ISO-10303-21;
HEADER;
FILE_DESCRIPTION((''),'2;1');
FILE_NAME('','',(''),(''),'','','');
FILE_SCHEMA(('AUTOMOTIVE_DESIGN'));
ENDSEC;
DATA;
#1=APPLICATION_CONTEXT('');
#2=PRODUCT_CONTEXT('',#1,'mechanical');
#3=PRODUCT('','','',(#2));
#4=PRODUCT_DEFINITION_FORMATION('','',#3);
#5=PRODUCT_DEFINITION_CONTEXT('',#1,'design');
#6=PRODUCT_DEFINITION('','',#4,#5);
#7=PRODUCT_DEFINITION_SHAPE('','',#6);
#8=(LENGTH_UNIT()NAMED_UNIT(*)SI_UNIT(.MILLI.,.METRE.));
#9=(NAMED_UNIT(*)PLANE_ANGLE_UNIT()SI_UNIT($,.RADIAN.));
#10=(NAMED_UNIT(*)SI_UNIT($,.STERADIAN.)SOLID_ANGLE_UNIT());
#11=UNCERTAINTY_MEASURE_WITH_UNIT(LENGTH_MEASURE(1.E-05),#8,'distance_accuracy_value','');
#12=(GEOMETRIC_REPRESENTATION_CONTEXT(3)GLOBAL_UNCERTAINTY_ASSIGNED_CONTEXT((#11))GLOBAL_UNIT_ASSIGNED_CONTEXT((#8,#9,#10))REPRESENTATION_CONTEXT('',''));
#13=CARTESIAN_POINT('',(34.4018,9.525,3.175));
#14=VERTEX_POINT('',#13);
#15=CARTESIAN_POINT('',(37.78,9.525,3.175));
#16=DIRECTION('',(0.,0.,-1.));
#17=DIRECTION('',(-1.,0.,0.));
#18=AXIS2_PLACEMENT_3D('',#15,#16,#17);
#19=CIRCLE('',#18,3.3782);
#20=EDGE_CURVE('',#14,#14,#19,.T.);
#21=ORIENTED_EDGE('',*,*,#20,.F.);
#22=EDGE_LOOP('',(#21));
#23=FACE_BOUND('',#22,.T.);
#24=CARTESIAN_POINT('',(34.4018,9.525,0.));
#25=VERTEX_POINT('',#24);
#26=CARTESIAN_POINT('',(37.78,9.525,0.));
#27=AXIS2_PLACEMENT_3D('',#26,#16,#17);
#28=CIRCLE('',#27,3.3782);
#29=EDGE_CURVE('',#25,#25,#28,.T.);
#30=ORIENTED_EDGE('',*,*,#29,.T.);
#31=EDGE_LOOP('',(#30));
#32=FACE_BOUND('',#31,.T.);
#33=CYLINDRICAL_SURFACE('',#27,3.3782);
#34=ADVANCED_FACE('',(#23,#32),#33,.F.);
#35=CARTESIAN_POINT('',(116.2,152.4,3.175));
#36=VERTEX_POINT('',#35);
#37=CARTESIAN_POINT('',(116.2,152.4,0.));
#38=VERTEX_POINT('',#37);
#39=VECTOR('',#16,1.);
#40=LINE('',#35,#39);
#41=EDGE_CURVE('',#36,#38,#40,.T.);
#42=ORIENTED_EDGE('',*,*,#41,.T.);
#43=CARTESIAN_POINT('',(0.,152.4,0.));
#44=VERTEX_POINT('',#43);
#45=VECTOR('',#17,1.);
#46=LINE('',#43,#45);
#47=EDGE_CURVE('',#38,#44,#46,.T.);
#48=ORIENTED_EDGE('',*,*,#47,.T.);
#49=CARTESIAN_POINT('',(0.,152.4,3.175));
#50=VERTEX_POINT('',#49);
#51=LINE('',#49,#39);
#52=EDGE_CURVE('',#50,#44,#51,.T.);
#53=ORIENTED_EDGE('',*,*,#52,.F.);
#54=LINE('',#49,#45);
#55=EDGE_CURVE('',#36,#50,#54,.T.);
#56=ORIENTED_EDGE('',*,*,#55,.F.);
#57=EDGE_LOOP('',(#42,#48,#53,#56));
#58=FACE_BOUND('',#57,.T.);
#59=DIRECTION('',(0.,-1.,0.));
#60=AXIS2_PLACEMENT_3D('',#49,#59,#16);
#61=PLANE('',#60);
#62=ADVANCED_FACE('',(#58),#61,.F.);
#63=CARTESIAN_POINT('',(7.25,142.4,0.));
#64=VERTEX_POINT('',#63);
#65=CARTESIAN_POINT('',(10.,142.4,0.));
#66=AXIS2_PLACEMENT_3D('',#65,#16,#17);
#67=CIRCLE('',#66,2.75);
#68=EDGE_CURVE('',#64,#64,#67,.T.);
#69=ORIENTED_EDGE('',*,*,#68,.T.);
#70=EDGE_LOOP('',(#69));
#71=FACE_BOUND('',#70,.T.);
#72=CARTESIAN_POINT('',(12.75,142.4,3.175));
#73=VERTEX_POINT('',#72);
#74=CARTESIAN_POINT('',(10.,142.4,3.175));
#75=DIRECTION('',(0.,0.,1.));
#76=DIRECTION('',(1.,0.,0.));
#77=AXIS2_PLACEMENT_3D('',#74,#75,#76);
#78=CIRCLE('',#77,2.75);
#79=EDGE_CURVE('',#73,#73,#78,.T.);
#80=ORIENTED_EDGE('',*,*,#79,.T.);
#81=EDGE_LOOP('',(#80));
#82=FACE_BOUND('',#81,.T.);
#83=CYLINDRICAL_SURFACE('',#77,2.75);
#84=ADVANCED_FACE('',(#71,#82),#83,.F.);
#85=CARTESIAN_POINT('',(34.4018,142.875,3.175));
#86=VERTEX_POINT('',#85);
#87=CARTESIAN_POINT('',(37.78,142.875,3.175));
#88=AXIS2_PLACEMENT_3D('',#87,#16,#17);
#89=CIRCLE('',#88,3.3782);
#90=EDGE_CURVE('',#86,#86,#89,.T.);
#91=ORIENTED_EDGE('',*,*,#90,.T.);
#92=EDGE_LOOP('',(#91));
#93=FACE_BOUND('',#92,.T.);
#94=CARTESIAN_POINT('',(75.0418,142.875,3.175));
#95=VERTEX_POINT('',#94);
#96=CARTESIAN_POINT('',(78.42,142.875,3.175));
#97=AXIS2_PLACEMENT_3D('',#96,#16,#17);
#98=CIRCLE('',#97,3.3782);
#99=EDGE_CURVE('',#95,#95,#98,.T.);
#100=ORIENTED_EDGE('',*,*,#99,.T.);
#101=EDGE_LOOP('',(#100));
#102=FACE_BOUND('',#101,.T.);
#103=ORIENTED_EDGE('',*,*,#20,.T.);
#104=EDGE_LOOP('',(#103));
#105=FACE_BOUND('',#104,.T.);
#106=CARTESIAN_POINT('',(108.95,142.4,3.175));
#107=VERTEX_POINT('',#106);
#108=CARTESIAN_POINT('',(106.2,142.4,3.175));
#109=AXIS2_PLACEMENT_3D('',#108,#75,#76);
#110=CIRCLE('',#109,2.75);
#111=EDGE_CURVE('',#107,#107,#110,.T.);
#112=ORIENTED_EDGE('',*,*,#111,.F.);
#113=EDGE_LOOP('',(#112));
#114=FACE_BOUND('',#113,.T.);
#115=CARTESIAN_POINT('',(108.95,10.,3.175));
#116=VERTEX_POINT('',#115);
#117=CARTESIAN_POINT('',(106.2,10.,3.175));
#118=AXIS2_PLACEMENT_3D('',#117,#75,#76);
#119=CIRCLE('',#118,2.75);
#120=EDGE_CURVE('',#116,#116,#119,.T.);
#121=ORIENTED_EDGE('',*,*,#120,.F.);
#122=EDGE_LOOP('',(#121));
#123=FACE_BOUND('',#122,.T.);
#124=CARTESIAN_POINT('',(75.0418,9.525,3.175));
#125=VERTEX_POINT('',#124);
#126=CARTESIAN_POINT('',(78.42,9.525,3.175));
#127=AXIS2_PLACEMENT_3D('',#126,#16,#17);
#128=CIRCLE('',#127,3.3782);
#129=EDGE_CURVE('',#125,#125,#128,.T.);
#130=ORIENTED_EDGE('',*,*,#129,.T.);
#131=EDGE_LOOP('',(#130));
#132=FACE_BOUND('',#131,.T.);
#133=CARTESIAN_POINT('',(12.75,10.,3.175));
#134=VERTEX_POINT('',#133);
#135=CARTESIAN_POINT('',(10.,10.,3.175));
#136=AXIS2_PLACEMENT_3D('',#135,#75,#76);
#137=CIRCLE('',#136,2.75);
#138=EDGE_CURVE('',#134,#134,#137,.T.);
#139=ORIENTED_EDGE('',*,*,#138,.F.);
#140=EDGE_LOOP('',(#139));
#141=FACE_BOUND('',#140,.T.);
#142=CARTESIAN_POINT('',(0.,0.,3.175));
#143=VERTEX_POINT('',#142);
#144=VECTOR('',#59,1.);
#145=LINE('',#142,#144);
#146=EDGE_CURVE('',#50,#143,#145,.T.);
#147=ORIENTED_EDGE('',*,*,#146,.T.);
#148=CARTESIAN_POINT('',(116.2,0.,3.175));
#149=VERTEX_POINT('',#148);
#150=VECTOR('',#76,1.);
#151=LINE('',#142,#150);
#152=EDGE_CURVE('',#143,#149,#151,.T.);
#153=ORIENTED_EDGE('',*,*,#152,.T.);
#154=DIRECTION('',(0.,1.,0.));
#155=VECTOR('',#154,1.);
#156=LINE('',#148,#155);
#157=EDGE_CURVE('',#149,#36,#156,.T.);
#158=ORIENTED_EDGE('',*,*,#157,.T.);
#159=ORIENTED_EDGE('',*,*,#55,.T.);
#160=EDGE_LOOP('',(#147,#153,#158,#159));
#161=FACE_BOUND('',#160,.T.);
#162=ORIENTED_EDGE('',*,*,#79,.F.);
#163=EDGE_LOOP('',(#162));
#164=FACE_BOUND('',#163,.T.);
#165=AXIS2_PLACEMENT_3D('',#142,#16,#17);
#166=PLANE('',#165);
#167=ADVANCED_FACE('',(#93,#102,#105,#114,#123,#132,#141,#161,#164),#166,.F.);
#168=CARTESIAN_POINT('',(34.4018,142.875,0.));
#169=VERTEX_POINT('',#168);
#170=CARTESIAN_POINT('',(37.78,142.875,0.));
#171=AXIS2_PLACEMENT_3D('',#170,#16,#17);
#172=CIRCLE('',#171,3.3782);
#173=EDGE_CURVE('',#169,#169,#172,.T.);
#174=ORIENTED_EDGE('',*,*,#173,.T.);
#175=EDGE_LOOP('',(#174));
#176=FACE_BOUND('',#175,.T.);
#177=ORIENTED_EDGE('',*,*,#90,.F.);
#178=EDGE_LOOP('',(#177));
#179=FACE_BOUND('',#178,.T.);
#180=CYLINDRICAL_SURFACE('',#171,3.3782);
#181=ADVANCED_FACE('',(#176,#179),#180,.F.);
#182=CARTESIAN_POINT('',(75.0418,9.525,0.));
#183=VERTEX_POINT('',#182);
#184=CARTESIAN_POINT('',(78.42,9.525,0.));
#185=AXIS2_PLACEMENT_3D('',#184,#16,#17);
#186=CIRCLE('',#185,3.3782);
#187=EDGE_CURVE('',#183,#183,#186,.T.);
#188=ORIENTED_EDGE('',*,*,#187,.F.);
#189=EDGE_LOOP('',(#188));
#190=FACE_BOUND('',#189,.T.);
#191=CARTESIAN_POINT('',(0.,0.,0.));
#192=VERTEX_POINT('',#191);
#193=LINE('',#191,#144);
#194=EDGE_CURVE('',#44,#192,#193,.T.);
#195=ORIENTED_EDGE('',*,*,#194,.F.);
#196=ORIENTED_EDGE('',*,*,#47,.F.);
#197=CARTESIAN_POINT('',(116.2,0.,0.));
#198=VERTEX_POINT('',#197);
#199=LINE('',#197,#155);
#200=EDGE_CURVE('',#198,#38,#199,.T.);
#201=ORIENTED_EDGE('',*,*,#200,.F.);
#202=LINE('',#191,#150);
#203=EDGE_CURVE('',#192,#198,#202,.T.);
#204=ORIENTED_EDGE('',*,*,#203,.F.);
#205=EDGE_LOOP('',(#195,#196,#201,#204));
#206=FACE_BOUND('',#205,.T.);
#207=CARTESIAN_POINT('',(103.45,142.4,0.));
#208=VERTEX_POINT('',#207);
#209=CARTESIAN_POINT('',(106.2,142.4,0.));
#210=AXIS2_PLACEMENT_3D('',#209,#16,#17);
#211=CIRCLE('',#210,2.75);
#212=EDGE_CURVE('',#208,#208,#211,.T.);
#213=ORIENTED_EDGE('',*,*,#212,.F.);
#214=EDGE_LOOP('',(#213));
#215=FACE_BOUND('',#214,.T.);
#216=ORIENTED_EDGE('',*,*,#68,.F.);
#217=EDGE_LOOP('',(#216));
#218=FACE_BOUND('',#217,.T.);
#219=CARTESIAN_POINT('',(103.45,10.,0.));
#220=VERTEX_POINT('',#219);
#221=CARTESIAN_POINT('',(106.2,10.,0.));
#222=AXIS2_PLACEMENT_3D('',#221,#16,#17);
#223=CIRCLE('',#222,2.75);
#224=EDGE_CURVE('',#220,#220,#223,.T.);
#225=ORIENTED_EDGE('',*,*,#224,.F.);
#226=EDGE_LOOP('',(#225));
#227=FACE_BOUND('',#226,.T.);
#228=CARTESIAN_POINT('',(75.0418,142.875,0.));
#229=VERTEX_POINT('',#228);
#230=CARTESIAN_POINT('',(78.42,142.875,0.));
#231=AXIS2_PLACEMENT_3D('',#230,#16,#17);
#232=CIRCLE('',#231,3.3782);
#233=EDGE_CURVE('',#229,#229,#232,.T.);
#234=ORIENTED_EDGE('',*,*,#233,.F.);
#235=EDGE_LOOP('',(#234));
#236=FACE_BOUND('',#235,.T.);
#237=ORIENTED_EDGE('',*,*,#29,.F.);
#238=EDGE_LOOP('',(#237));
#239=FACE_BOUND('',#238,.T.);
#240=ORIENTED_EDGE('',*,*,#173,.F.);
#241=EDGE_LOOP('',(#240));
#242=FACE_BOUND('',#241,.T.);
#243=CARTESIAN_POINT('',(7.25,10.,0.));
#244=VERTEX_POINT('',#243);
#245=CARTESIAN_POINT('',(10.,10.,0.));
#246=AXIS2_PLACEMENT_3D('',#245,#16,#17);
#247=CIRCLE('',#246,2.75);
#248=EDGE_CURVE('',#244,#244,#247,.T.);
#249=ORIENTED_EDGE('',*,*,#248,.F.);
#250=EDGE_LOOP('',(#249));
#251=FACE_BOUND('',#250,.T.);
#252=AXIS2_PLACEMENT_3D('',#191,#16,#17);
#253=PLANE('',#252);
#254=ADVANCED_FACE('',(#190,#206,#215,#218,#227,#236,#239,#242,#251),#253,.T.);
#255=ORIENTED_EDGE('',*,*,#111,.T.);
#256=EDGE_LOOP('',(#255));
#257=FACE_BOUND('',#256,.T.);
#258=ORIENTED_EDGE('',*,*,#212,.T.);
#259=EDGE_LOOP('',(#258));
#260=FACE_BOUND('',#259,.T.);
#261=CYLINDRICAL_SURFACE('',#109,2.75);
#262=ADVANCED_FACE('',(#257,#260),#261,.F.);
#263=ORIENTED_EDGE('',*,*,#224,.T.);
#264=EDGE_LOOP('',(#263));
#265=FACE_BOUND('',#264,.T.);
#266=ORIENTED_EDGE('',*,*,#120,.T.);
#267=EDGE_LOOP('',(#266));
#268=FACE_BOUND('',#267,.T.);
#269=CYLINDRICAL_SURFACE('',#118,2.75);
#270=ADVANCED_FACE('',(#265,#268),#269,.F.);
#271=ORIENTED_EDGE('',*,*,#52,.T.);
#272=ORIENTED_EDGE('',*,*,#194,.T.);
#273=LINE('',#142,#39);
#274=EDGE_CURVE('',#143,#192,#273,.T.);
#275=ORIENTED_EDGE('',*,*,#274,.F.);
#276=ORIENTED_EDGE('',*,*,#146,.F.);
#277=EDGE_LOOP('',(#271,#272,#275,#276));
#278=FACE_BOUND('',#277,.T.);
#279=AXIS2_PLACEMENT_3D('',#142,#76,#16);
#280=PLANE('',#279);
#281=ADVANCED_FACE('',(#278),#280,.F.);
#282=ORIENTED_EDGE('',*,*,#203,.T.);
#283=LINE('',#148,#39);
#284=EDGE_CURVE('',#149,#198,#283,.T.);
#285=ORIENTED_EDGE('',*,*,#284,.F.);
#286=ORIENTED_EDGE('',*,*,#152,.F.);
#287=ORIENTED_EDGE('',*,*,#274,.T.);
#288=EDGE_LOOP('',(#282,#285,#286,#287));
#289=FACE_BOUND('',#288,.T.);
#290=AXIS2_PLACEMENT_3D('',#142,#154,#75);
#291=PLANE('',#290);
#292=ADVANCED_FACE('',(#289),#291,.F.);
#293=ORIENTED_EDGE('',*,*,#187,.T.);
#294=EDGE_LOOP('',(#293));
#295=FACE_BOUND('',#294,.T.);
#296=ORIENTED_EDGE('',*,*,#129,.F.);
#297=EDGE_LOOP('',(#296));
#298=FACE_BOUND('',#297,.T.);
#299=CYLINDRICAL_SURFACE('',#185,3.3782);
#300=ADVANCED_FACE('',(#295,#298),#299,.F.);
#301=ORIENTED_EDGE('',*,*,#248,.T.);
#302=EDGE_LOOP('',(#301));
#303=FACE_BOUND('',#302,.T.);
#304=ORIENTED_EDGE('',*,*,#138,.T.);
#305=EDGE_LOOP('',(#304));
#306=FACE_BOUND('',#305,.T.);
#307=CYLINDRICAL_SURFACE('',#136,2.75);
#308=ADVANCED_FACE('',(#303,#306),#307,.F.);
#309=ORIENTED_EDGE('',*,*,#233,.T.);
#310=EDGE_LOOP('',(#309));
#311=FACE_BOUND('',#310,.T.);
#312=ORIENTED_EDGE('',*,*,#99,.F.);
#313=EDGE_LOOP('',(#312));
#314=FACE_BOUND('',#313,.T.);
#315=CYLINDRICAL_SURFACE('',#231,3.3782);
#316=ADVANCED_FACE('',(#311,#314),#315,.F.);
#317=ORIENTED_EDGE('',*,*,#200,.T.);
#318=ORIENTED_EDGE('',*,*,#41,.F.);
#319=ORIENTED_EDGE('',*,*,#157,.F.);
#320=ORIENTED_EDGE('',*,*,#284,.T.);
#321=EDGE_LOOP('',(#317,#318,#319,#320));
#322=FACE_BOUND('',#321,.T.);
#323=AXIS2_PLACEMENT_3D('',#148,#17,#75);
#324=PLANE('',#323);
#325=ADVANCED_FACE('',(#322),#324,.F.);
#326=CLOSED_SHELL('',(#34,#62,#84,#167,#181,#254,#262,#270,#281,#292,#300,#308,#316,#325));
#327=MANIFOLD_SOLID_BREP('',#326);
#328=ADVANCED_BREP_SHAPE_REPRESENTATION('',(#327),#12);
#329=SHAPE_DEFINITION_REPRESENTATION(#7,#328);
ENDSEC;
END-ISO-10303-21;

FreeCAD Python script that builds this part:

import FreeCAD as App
import Part
import Sketcher
Q = App.Units.Quantity

doc = App.newDocument("Part")
body = doc.addObject("PartDesign::Body", "Body")

sketch1 = body.newObject("Sketcher::SketchObject", "Sketch")
sketch1.AttachmentSupport = (doc.getObject("XY_Plane"), [""])
sketch1.MapMode = "FlatFace"
sketch1.addGeometry(Part.LineSegment(App.Vector(0, 152, 0), App.Vector(0, 0, 0)), False)
sketch1.addGeometry(Part.LineSegment(App.Vector(0, 0, 0), App.Vector(116, 0, 0)), False)
sketch1.addGeometry(Part.LineSegment(App.Vector(116, 0, 0), App.Vector(116, 152, 0)), False)
sketch1.addGeometry(Part.LineSegment(App.Vector(116, 152, 0), App.Vector(0, 152, 0)), False)
sketch1.addConstraint(Sketcher.Constraint("Coincident", 0, 2, 1, 1))
sketch1.addConstraint(Sketcher.Constraint("Coincident", 1, 2, 2, 1))
sketch1.addConstraint(Sketcher.Constraint("Coincident", 2, 2, 3, 1))
sketch1.addConstraint(Sketcher.Constraint("Coincident", 3, 2, 0, 1))
sketch1.addConstraint(Sketcher.Constraint("Vertical", 0))
sketch1.addConstraint(Sketcher.Constraint("Horizontal", 1))
sketch1.addConstraint(Sketcher.Constraint("Vertical", 2))
sketch1.addConstraint(Sketcher.Constraint("Horizontal", 3))
sketch1.addConstraint(Sketcher.Constraint("Coincident", 0, 2, -1, 1))
sketch1.addConstraint(Sketcher.Constraint("DistanceY", 0, 2, 0, 1, Q("6 in")))
sketch1.addConstraint(Sketcher.Constraint("DistanceX", 1, 1, 1, 2, 116.2))
pad1 = body.newObject("PartDesign::Pad", "Pad")
pad1.Profile = sketch1
pad1.Length = Q("0.125 in")

sketch2 = body.newObject("Sketcher::SketchObject", "Sketch001")
sketch2.AttachmentSupport = (doc.getObject("XY_Plane"), [""])
sketch2.MapMode = "FlatFace"
sketch2.AttachmentOffset = App.Placement(App.Vector(0, 0, 0.125 * 25.4), App.Rotation())
sketch2.addGeometry(Part.Circle(App.Vector(10, 142.4, 0), App.Vector(0, 0, 1), 2.8), False)
sketch2.addGeometry(Part.Circle(App.Vector(106.2, 142.4, 0), App.Vector(0, 0, 1), 2.8), False)
sketch2.addGeometry(Part.Circle(App.Vector(106.2, 10, 0), App.Vector(0, 0, 1), 2.8), False)
sketch2.addGeometry(Part.Circle(App.Vector(10, 10, 0), App.Vector(0, 0, 1), 2.8), False)
sketch2.addConstraint(Sketcher.Constraint("Equal", 0, 1))
sketch2.addConstraint(Sketcher.Constraint("Equal", 1, 2))
sketch2.addConstraint(Sketcher.Constraint("Equal", 2, 3))
sketch2.addConstraint(Sketcher.Constraint("Horizontal", 0, 3, 1, 3))
sketch2.addConstraint(Sketcher.Constraint("Horizontal", 2, 3, 3, 3))
sketch2.addConstraint(Sketcher.Constraint("Vertical", 1, 3, 2, 3))
sketch2.addConstraint(Sketcher.Constraint("Vertical", 0, 3, 3, 3))
sketch2.addConstraint(Sketcher.Constraint("Diameter", 0, 5.5))
sketch2.addConstraint(Sketcher.Constraint("DistanceX", -1, 1, 0, 3, 10.0))
sketch2.addConstraint(Sketcher.Constraint("DistanceY", -1, 1, 0, 3, 142.4))
sketch2.addConstraint(Sketcher.Constraint("DistanceX", -1, 1, 1, 3, 106.2))
sketch2.addConstraint(Sketcher.Constraint("DistanceY", -1, 1, 2, 3, 10.0))
doc.recompute()
hole = body.newObject("PartDesign::Hole", "Hole")
hole.Profile = sketch2
hole.ThreadType = "None"
hole.Diameter = 5.5
hole.DepthType = "ThroughAll"

sketch3 = body.newObject("Sketcher::SketchObject", "Sketch002")
sketch3.AttachmentSupport = (doc.getObject("XY_Plane"), [""])
sketch3.MapMode = "FlatFace"
sketch3.addGeometry(Part.Circle(App.Vector(78.4, 142.9, 0), App.Vector(0, 0, 1), 3.4), False)
sketch3.addGeometry(Part.Circle(App.Vector(37.8, 142.9, 0), App.Vector(0, 0, 1), 3.4), False)
sketch3.addGeometry(Part.Circle(App.Vector(37.8, 9.5, 0), App.Vector(0, 0, 1), 3.4), False)
sketch3.addGeometry(Part.Circle(App.Vector(78.4, 9.5, 0), App.Vector(0, 0, 1), 3.4), False)
sketch3.addConstraint(Sketcher.Constraint("Equal", 0, 1))
sketch3.addConstraint(Sketcher.Constraint("Equal", 1, 2))
sketch3.addConstraint(Sketcher.Constraint("Equal", 2, 3))
sketch3.addConstraint(Sketcher.Constraint("Horizontal", 0, 3, 1, 3))
sketch3.addConstraint(Sketcher.Constraint("Horizontal", 2, 3, 3, 3))
sketch3.addConstraint(Sketcher.Constraint("Vertical", 1, 3, 2, 3))
sketch3.addConstraint(Sketcher.Constraint("Vertical", 0, 3, 3, 3))
sketch3.addConstraint(Sketcher.Constraint("Diameter", 0, Q("0.266 in")))
sketch3.addConstraint(Sketcher.Constraint("DistanceX", 1, 3, 0, 3, Q("1.6 in")))
sketch3.addConstraint(Sketcher.Constraint("DistanceY", 2, 3, 1, 3, Q("5.25 in")))
sketch3.addConstraint(Sketcher.Constraint("DistanceY", -1, 1, 0, 3, Q("5.625 in")))
sketch3.addConstraint(Sketcher.Constraint("DistanceX", -1, 1, 0, 3, 78.42))
doc.recompute()
hole2 = body.newObject("PartDesign::Hole", "Hole001")
hole2.Profile = sketch3
hole2.ThreadType = "None"
hole2.Diameter = Q("0.266 in")
hole2.DepthType = "ThroughAll"
hole2.Reversed = True

doc.recompute()
